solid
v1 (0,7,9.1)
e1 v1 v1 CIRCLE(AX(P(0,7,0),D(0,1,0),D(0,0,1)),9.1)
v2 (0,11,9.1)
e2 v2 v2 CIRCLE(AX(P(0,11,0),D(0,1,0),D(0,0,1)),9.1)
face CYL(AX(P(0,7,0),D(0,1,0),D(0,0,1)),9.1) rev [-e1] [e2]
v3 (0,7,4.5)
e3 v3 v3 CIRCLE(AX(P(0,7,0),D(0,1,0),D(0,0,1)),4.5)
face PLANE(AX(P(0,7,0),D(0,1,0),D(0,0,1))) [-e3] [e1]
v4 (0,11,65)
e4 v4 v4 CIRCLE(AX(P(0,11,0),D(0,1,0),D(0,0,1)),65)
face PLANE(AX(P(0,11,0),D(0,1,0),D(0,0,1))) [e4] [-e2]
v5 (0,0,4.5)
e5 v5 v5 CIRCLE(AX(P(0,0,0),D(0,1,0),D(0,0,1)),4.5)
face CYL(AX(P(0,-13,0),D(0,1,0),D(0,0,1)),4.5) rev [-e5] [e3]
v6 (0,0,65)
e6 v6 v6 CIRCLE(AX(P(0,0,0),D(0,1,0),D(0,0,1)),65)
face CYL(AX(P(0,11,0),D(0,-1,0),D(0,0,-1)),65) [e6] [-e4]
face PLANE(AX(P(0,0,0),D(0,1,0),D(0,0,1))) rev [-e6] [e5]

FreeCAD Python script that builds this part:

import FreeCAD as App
import Part
import Sketcher
from FreeCAD import Vector
Q = App.Units.Quantity

doc = App.newDocument("Part")
body = doc.addObject("PartDesign::Body", "Body")

# Sketch on XZ plane
sketch1 = body.newObject("Sketcher::SketchObject", "Sketch")
sketch1.AttachmentSupport = (doc.getObject("XZ_Plane"), [""])
sketch1.MapMode = "FlatFace"
sketch1.addGeometry(Part.Circle(Vector(0, 0, 0), Vector(0, 0, 1), 65), False)
sketch1.addConstraint(Sketcher.Constraint("Coincident", 0, 3, -1, 1))
sketch1.addConstraint(Sketcher.Constraint("Diameter", 0, Q("130 mm")))
pad1 = body.newObject("PartDesign::Pad", "Pad")
pad1.Profile = sketch1
pad1.Length = 11
pad1.Reversed = True

# Sketch on XZ plane
sketch2 = body.newObject("Sketcher::SketchObject", "Sketch001")
sketch2.AttachmentSupport = (doc.getObject("XZ_Plane"), [""])
sketch2.MapMode = "FlatFace"
sketch2.AttachmentOffset = App.Placement(Vector(0, 0, -11), App.Rotation())
sketch2.addGeometry(Part.Circle(Vector(0, 0, 0), Vector(0, 0, 1), 9), False)
sketch2.addConstraint(Sketcher.Constraint("Coincident", 0, 3, -1, 1))
sketch2.addConstraint(Sketcher.Constraint("Diameter", 0, Q("18.2 mm")))
pocket1 = body.newObject("PartDesign::Pocket", "Pocket")
pocket1.Profile = sketch2
pocket1.Length = 4
pocket1.Reversed = True

# Sketch on XZ plane
sketch3 = body.newObject("Sketcher::SketchObject", "Sketch002")
sketch3.AttachmentSupport = (doc.getObject("XZ_Plane"), [""])
sketch3.MapMode = "FlatFace"
sketch3.AttachmentOffset = App.Placement(Vector(0, 0, -7), App.Rotation())
sketch3.addGeometry(Part.Circle(Vector(0, 0, 0), Vector(0, 0, 1), 4.5), False)
sketch3.addConstraint(Sketcher.Constraint("Coincident", 0, 3, -1, 1))
sketch3.addConstraint(Sketcher.Constraint("Diameter", 0, Q("9 mm")))
pocket2 = body.newObject("PartDesign::Pocket", "Pocket001")
pocket2.Profile = sketch3
pocket2.Length = 20
pocket2.Reversed = True

doc.recompute()
